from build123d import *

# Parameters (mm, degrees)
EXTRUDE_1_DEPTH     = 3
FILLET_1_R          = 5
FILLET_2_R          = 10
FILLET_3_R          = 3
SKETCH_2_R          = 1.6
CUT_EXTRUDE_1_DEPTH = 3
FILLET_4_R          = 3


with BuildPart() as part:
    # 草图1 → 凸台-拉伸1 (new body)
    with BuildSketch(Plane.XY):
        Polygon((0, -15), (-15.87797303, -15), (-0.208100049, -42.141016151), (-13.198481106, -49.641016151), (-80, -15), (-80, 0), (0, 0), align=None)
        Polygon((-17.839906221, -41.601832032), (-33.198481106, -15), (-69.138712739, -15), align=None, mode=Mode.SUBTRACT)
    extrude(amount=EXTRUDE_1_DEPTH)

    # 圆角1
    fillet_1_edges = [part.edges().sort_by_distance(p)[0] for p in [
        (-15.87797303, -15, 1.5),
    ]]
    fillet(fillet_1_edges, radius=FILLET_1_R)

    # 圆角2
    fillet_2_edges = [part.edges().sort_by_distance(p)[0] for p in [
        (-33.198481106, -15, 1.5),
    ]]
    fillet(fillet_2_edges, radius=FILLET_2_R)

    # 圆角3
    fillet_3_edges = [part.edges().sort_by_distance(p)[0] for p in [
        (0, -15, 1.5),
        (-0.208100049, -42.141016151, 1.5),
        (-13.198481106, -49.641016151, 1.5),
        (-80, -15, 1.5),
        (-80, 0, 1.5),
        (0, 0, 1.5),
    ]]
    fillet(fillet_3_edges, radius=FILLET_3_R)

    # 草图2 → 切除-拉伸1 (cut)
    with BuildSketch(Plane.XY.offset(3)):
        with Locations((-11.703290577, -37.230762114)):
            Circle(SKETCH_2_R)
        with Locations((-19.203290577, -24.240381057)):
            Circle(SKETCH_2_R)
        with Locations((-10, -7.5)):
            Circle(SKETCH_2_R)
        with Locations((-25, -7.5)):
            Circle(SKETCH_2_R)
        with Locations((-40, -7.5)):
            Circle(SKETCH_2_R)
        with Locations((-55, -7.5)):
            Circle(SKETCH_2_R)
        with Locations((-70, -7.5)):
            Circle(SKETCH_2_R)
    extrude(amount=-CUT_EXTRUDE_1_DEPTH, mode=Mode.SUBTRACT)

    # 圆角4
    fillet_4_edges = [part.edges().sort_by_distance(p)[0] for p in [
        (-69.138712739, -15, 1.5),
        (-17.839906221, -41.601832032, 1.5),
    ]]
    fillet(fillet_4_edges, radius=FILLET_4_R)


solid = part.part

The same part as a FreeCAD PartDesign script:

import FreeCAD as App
import Part
import Sketcher
Q = App.Units.Quantity


def edges_at(feature, points):
    """Names of the edges that pass closest to the given points."""
    edges = feature.Shape.Edges
    near = lambda p: min(range(len(edges)), key=lambda i: edges[i].distToShape(Part.Vertex(*p))[0])
    return sorted({f"Edge{near(p) + 1}" for p in points})


def add_polygon(sketch, points):
    """Adds a closed chain of lines whose ends are joined by coincident constraints."""
    first, n = sketch.GeometryCount, len(points)
    for a, b in zip(points, points[1:] + points[:1]):
        sketch.addGeometry(Part.LineSegment(App.Vector(*a, 0), App.Vector(*b, 0)), False)
    for i in range(n):
        sketch.addConstraint(Sketcher.Constraint("Coincident", first + i, 2, first + (i + 1) % n, 1))

doc = App.newDocument("Part")
body = doc.addObject("PartDesign::Body", "Body")

sketch1 = body.newObject("Sketcher::SketchObject", "Sketch")
sketch1.AttachmentSupport = (doc.getObject("XY_Plane"), [""])
sketch1.MapMode = "FlatFace"
add_polygon(sketch1, [(-15.877973, -15), (0, -15), (0, 0), (-80, 0), (-80, -15), (-13.198481, -49.641016), (-0.2081, -42.141016)])
add_polygon(sketch1, [(-17.839906, -41.601832), (-69.138713, -15), (-33.198481, -15)])
sketch1.addConstraint([
    Sketcher.Constraint("Horizontal", 0),
    Sketcher.Constraint("Vertical", 1),
    Sketcher.Constraint("Horizontal", 2),
    Sketcher.Constraint("Vertical", 3),
    Sketcher.Constraint("Horizontal", 8),
    Sketcher.Constraint("Coincident", 1, 2, -1, 1),
    Sketcher.Constraint("Perpendicular", 5, 6),
    Sketcher.Constraint("Parallel", 4, 7),
    Sketcher.Constraint("Parallel", 6, 9),
    Sketcher.Constraint("Horizontal", 0, 2, 3, 2),
    Sketcher.Constraint("Horizontal", 6, 2, 7, 2),
    Sketcher.Constraint("DistanceX", 2, 2, 2, 1, Q("80 mm")),
    Sketcher.Constraint("DistanceY", 1, 1, 1, 2, Q("15 mm")),
    Sketcher.Constraint("Angle", 5, Q("30 deg")),
    Sketcher.Constraint("Distance", 5, Q("15 mm")),
    Sketcher.Constraint("DistanceX", 8, 2, 4, 2, Q("20 mm")),
    Sketcher.Constraint("DistanceX", 8, 1, 8, 2, Q("35.940232 mm")),
    Sketcher.Constraint("DistanceX", 5, 2, -1, 1, Q("0.2081 mm")),
    Sketcher.Constraint("Distance", 9, Q("30.71715 mm")),
])
pad1 = body.newObject("PartDesign::Pad", "Pad")
pad1.Profile = sketch1
pad1.Length = 3
doc.recompute()

fillet = body.newObject("PartDesign::Fillet", "Fillet")
fillet.Base = (pad1, edges_at(pad1, [(-15.878, -15, 1.5)]))
fillet.Radius = 5
doc.recompute()

fillet2 = body.newObject("PartDesign::Fillet", "Fillet001")
fillet2.Base = (fillet, edges_at(fillet, [(-33.198, -15, 1.5)]))
fillet2.Radius = 10
doc.recompute()

fillet3 = body.newObject("PartDesign::Fillet", "Fillet002")
fillet3.Base = (fillet2, edges_at(fillet2, [
    (0, -15, 1.5),
    (-0.208, -42.141, 1.5),
    (-13.198, -49.641, 1.5),
    (-80, -15, 1.5),
    (-80, 0, 1.5),
    (0, 0, 1.5),
]))
fillet3.Radius = 3

sketch2 = body.newObject("Sketcher::SketchObject", "Sketch001")
sketch2.AttachmentSupport = (doc.getObject("XY_Plane"), [""])
sketch2.MapMode = "FlatFace"
sketch2.AttachmentOffset = App.Placement(App.Vector(0, 0, 3), App.Rotation())
sketch2.addGeometry([
    Part.Circle(App.Vector(-11.703291, -37.230762, 0), App.Vector(0, 0, 1), 1.6),
    Part.Circle(App.Vector(-19.203291, -24.240381, 0), App.Vector(0, 0, 1), 1.6),
    Part.Circle(App.Vector(-10, -7.5, 0), App.Vector(0, 0, 1), 1.6),
    Part.Circle(App.Vector(-25, -7.5, 0), App.Vector(0, 0, 1), 1.6),
    Part.Circle(App.Vector(-40, -7.5, 0), App.Vector(0, 0, 1), 1.6),
    Part.Circle(App.Vector(-55, -7.5, 0), App.Vector(0, 0, 1), 1.6),
    Part.Circle(App.Vector(-70, -7.5, 0), App.Vector(0, 0, 1), 1.6),
], False)
sketch2.addConstraint([
    Sketcher.Constraint("Equal", 0, 1),
    Sketcher.Constraint("Equal", 1, 2),
    Sketcher.Constraint("Equal", 2, 3),
    Sketcher.Constraint("Equal", 3, 4),
    Sketcher.Constraint("Equal", 4, 5),
    Sketcher.Constraint("Equal", 5, 6),
    Sketcher.Constraint("Horizontal", 2, 3, 3, 3),
    Sketcher.Constraint("Horizontal", 3, 3, 4, 3),
    Sketcher.Constraint("Horizontal", 4, 3, 5, 3),
    Sketcher.Constraint("Horizontal", 5, 3, 6, 3),
    Sketcher.Constraint("Diameter", 0, Q("3.2 mm")),
    Sketcher.Constraint("DistanceX", 2, 3, -1, 1, Q("10 mm")),
    Sketcher.Constraint("DistanceX", 3, 3, -1, 1, Q("25 mm")),
    Sketcher.Constraint("DistanceX", 4, 3, -1, 1, Q("40 mm")),
    Sketcher.Constraint("DistanceX", 5, 3, -1, 1, Q("55 mm")),
    Sketcher.Constraint("DistanceX", 6, 3, -1, 1, Q("70 mm")),
    Sketcher.Constraint("DistanceY", 2, 3, -1, 1, Q("7.5 mm")),
    Sketcher.Constraint("DistanceX", 1, 3, 0, 3, Q("7.5 mm")),
    Sketcher.Constraint("DistanceX", 0, 3, -1, 1, Q("11.703291 mm")),
    Sketcher.Constraint("DistanceY", 1, 3, -1, 1, Q("24.240381 mm")),
    Sketcher.Constraint("DistanceY", 0, 3, 1, 3, Q("12.990381 mm")),
])
pocket1 = body.newObject("PartDesign::Pocket", "Pocket")
pocket1.Profile = sketch2
pocket1.Length = 3
doc.recompute()

fillet4 = body.newObject("PartDesign::Fillet", "Fillet003")
fillet4.Base = (pocket1, edges_at(pocket1, [(-69.139, -15, 1.5), (-17.84, -41.602, 1.5)]))
fillet4.Radius = 3

doc.recompute()
